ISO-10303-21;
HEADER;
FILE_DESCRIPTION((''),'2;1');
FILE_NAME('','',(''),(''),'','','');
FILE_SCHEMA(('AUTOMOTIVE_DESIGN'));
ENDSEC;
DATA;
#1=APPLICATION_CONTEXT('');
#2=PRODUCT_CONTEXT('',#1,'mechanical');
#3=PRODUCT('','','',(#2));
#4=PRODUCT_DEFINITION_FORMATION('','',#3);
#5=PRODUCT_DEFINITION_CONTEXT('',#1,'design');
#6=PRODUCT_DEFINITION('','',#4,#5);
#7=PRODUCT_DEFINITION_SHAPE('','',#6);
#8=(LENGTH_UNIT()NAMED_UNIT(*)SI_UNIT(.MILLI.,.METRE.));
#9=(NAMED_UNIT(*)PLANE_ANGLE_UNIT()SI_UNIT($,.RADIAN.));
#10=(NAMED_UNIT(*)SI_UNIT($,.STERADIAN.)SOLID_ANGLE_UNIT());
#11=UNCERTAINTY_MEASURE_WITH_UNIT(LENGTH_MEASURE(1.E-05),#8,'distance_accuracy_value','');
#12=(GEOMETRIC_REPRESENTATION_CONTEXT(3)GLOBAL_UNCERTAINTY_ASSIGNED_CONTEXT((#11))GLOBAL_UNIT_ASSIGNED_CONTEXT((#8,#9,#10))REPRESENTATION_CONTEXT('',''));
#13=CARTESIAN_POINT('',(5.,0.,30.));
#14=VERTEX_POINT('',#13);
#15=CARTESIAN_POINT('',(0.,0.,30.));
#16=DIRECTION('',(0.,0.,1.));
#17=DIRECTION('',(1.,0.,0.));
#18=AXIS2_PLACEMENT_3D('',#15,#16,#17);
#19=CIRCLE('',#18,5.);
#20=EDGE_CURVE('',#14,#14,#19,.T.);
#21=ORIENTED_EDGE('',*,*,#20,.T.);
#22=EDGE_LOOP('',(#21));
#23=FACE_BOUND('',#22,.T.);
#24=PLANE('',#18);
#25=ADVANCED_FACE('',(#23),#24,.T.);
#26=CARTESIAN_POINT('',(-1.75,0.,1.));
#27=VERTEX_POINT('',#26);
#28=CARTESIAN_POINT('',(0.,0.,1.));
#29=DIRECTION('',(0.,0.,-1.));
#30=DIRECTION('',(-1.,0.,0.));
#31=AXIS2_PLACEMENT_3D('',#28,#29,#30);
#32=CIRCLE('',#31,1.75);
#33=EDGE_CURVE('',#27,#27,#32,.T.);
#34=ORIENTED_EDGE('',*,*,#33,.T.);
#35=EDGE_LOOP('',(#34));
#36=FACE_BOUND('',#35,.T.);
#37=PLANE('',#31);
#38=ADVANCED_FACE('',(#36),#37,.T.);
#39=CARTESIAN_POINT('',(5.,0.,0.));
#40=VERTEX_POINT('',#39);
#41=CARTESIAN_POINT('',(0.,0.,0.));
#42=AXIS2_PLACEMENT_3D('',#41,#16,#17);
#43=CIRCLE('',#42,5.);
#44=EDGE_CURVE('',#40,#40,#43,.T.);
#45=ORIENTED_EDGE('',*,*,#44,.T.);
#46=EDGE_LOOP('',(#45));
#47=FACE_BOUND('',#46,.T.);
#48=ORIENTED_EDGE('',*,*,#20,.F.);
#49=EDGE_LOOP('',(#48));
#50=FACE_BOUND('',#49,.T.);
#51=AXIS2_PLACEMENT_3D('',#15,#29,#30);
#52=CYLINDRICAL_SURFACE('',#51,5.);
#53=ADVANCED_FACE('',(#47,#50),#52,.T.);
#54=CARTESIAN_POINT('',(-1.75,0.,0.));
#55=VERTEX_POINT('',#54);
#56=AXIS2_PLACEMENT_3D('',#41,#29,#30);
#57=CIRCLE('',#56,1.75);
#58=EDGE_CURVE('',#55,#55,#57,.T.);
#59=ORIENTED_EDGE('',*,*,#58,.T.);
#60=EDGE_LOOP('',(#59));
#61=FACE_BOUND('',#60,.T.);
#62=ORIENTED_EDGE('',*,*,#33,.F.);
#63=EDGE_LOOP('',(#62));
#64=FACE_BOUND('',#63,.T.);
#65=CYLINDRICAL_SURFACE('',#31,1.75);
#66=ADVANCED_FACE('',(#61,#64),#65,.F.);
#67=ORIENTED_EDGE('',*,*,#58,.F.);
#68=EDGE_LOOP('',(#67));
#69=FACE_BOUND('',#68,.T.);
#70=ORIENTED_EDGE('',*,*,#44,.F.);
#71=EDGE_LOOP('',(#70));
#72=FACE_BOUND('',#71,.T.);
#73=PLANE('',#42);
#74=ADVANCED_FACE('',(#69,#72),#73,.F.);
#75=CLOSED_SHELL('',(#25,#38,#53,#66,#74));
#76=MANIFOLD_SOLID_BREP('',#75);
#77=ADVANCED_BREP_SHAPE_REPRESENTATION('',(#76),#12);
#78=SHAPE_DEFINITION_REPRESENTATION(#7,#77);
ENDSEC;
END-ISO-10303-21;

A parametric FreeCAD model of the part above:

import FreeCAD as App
import Part
import Sketcher
from FreeCAD import Vector

doc = App.newDocument("Part")
body = doc.addObject("PartDesign::Body", "Body")

# Sketch on XY plane
sketch1 = body.newObject("Sketcher::SketchObject", "Sketch")
sketch1.AttachmentSupport = (doc.getObject("XY_Plane"), [""])
sketch1.MapMode = "FlatFace"
sketch1.addGeometry(Part.Circle(Vector(0, 0, 0), Vector(0, 0, 1), 5), False)
sketch1.addConstraint([
    Sketcher.Constraint("Coincident", 0, 3, -1, 1),
    Sketcher.Constraint("Diameter", 0, 10.0),
])
pad1 = body.newObject("PartDesign::Pad", "Pad")
pad1.Profile = sketch1
pad1.Length = 30

# Sketch on XY plane
sketch2 = body.newObject("Sketcher::SketchObject", "Sketch001")
sketch2.AttachmentSupport = (doc.getObject("XY_Plane"), [""])
sketch2.MapMode = "FlatFace"
sketch2.addGeometry(Part.Circle(Vector(0, 0, 0), Vector(0, 0, 1), 1.8), False)
sketch2.addConstraint([
    Sketcher.Constraint("Coincident", 0, 3, -1, 1),
    Sketcher.Constraint("Diameter", 0, 3.5),
])
pocket1 = body.newObject("PartDesign::Pocket", "Pocket")
pocket1.Profile = sketch2
pocket1.Length = 1
pocket1.Reversed = True

doc.recompute()
